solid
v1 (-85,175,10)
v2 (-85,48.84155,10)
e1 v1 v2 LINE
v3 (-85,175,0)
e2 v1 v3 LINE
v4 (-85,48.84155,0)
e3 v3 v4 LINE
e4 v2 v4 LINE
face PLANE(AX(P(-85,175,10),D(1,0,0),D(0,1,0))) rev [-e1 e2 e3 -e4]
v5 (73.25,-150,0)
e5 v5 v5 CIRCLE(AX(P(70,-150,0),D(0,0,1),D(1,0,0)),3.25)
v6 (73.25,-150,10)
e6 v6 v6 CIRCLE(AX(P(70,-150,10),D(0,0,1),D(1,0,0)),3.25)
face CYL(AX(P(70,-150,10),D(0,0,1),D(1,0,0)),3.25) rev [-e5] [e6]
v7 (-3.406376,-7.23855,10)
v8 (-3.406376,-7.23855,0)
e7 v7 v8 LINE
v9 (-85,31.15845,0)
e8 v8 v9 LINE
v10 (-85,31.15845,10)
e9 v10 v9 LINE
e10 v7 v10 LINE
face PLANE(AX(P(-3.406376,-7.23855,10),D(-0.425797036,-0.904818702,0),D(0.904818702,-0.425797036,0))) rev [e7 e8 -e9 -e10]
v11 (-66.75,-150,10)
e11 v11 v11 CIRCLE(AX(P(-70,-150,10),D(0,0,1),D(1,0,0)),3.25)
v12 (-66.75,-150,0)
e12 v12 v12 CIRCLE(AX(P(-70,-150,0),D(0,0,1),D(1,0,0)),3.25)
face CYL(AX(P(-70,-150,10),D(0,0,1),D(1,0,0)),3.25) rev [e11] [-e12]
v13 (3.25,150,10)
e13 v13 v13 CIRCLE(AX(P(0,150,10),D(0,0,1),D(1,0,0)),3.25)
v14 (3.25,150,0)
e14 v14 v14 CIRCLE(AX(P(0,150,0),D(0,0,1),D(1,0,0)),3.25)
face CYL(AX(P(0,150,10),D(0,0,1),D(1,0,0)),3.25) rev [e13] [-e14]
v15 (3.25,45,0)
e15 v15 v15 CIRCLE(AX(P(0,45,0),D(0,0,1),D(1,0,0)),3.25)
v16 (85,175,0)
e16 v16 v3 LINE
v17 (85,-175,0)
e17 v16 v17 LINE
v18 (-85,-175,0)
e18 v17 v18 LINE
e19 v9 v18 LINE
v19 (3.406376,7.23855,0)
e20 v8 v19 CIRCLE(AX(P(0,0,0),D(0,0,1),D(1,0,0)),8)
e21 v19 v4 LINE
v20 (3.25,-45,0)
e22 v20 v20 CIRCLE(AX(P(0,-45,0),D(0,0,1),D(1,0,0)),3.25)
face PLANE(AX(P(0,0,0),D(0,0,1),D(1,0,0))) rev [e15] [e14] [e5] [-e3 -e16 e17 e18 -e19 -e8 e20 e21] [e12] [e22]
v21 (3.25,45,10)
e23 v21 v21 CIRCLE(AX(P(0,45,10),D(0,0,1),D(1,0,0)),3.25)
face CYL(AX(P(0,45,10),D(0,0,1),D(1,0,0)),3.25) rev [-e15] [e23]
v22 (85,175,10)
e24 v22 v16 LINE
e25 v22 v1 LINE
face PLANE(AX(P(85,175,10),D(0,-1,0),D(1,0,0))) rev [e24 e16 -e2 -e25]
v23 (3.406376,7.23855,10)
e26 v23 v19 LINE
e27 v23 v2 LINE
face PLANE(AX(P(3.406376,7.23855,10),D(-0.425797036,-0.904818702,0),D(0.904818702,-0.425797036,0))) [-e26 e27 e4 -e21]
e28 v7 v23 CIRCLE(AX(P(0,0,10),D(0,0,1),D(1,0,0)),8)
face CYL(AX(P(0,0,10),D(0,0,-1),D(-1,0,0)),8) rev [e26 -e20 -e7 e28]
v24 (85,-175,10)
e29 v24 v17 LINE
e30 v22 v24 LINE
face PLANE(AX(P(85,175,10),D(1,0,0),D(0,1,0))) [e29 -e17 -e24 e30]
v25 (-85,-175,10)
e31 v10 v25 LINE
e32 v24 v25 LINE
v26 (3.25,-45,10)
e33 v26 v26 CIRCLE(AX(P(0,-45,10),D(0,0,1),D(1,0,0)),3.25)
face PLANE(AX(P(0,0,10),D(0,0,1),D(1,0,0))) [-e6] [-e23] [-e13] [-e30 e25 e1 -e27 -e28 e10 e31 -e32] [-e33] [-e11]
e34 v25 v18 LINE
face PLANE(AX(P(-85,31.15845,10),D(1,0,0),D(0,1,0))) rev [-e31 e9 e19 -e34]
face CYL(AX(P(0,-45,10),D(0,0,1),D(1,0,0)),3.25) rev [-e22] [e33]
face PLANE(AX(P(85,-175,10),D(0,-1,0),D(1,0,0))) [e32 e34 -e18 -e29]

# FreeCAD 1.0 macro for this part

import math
import FreeCAD as App
import Part
import Sketcher

V = App.Vector
Q = App.Units.Quantity

doc = App.newDocument("Part")
body = doc.addObject("PartDesign::Body", "Body")

# Sketch on XY plane
sketch1 = body.newObject("Sketcher::SketchObject", "Sketch")
sketch1.AttachmentSupport = (doc.getObject("XY_Plane"), [""])
sketch1.MapMode = "FlatFace"
sketch1.addGeometry(Part.LineSegment(V(85, 175, 0), V(-85, 175, 0)), False)
sketch1.addGeometry(Part.LineSegment(V(-85, 175, 0), V(-85, 48.84155, 0)), False)
sketch1.addGeometry(Part.LineSegment(V(-85, 48.84155, 0), V(3.406376, 7.23855, 0)), False)
sketch1.addGeometry(Part.ArcOfCircle(Part.Circle(V(0, 0, 0), V(0, 0, 1), 8), math.radians(-115.201124), math.radians(64.798876)), False)
sketch1.addGeometry(Part.LineSegment(V(-3.406376, -7.23855, 0), V(-85, 31.15845, 0)), False)
sketch1.addGeometry(Part.LineSegment(V(-85, 31.15845, 0), V(-85, -175, 0)), False)
sketch1.addGeometry(Part.LineSegment(V(-85, -175, 0), V(85, -175, 0)), False)
sketch1.addGeometry(Part.LineSegment(V(85, -175, 0), V(85, 175, 0)), False)
sketch1.addConstraint(Sketcher.Constraint("Coincident", 0, 2, 1, 1))
sketch1.addConstraint(Sketcher.Constraint("Coincident", 1, 2, 2, 1))
sketch1.addConstraint(Sketcher.Constraint("Tangent", 2, 2, 3, 2))
sketch1.addConstraint(Sketcher.Constraint("Tangent", 3, 1, 4, 1))
sketch1.addConstraint(Sketcher.Constraint("Coincident", 4, 2, 5, 1))
sketch1.addConstraint(Sketcher.Constraint("Coincident", 5, 2, 6, 1))
sketch1.addConstraint(Sketcher.Constraint("Coincident", 6, 2, 7, 1))
sketch1.addConstraint(Sketcher.Constraint("Coincident", 7, 2, 0, 1))
sketch1.addConstraint(Sketcher.Constraint("Horizontal", 0))
sketch1.addConstraint(Sketcher.Constraint("Vertical", 1))
sketch1.addConstraint(Sketcher.Constraint("Vertical", 5))
sketch1.addConstraint(Sketcher.Constraint("Horizontal", 6))
sketch1.addConstraint(Sketcher.Constraint("Vertical", 7))
sketch1.addConstraint(Sketcher.Constraint("Coincident", 3, 3, -1, 1))
sketch1.addConstraint(Sketcher.Constraint("Symmetric", 0, 2, 6, 2, -1, 1))
sketch1.addConstraint(Sketcher.Constraint("Parallel", 2, 4))
sketch1.addConstraint(Sketcher.Constraint("Vertical", 1, 2, 4, 2))
sketch1.addConstraint(Sketcher.Constraint("Radius", 3, Q("8 mm")))
sketch1.addConstraint(Sketcher.Constraint("DistanceX", 0, 2, 0, 1, Q("170 mm")))
sketch1.addConstraint(Sketcher.Constraint("DistanceY", 7, 1, 7, 2, Q("350 mm")))
sketch1.addConstraint(Sketcher.Constraint("DistanceY", 2, 2, 1, 2, Q("41.603001 mm")))
pad1 = body.newObject("PartDesign::Pad", "Pad")
pad1.Profile = sketch1
pad1.Length = 10

# Sketch on XY plane
sketch2 = body.newObject("Sketcher::SketchObject", "Sketch001")
sketch2.AttachmentSupport = (doc.getObject("XY_Plane"), [""])
sketch2.MapMode = "FlatFace"
sketch2.AttachmentOffset = App.Placement(V(0, 0, 10), App.Rotation())
sketch2.addGeometry(Part.Circle(V(0, 150, 0), V(0, 0, 1), 3.25), False)
sketch2.addGeometry(Part.Circle(V(-70, -150, 0), V(0, 0, 1), 3.25), False)
sketch2.addGeometry(Part.Circle(V(70, -150, 0), V(0, 0, 1), 3.25), False)
sketch2.addGeometry(Part.Circle(V(0, 45, 0), V(0, 0, 1), 3.25), False)
sketch2.addGeometry(Part.Circle(V(0, -45, 0), V(0, 0, 1), 3.25), False)
sketch2.addConstraint(Sketcher.Constraint("Equal", 0, 1))
sketch2.addConstraint(Sketcher.Constraint("Equal", 1, 2))
sketch2.addConstraint(Sketcher.Constraint("Equal", 2, 3))
sketch2.addConstraint(Sketcher.Constraint("Equal", 3, 4))
sketch2.addConstraint(Sketcher.Constraint("Symmetric", 3, 3, 4, 3, -1, 1))
sketch2.addConstraint(Sketcher.Constraint("Symmetric", 1, 3, 2, 3, -2))
sketch2.addConstraint(Sketcher.Constraint("PointOnObject", 0, 3, -2))
sketch2.addConstraint(Sketcher.Constraint("PointOnObject", 3, 3, -2))
sketch2.addConstraint(Sketcher.Constraint("Diameter", 0, Q("6.5 mm")))
sketch2.addConstraint(Sketcher.Constraint("DistanceY", -1, 1, 0, 3, Q("150 mm")))
sketch2.addConstraint(Sketcher.Constraint("DistanceX", 1, 3, -1, 1, Q("70 mm")))
sketch2.addConstraint(Sketcher.Constraint("DistanceY", 1, 3, -1, 1, Q("150 mm")))
sketch2.addConstraint(Sketcher.Constraint("DistanceY", -1, 1, 3, 3, Q("45 mm")))
doc.recompute()
hole = body.newObject("PartDesign::Hole", "Hole")
hole.Profile = sketch2
hole.ThreadType = "None"
hole.Diameter = 6.5
hole.DepthType = "ThroughAll"

doc.recompute()
